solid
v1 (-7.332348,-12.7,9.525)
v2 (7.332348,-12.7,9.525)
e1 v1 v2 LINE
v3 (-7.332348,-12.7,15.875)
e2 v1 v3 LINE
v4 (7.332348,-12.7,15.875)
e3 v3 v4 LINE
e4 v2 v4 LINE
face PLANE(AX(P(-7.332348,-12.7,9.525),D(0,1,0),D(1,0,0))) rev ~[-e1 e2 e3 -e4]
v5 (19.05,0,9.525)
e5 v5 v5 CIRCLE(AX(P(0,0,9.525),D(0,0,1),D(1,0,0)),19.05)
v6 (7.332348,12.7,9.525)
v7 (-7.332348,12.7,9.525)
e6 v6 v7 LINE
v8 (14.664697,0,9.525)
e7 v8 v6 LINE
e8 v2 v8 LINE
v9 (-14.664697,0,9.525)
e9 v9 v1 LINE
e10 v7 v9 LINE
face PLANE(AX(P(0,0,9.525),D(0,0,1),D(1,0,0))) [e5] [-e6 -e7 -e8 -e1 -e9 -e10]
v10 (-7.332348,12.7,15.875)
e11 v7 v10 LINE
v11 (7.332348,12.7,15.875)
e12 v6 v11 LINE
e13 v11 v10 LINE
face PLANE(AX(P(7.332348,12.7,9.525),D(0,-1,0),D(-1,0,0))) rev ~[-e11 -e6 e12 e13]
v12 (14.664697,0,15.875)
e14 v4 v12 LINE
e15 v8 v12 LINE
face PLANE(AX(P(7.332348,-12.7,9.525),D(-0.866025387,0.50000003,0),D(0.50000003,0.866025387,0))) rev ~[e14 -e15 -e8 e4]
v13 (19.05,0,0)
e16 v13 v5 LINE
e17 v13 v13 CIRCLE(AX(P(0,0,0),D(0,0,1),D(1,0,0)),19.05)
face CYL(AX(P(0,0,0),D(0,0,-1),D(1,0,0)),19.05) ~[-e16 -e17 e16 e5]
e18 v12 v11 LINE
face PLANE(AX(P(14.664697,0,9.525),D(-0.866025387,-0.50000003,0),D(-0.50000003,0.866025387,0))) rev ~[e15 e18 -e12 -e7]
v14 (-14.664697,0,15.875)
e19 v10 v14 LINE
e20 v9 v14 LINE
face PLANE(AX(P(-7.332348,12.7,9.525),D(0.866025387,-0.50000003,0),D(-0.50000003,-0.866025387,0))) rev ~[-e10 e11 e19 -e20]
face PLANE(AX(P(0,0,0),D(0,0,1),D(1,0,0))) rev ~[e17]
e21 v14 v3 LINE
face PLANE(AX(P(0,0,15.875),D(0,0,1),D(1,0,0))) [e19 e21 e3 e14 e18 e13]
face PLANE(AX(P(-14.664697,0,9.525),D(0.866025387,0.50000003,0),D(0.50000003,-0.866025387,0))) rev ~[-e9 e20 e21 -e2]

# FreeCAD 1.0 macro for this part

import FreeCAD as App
import Part
import Sketcher
Q = App.Units.Quantity


def add_polygon(sketch, points):
    """Adds a closed chain of lines whose ends are joined by coincident constraints."""
    first, n = sketch.GeometryCount, len(points)
    for a, b in zip(points, points[1:] + points[:1]):
        sketch.addGeometry(Part.LineSegment(App.Vector(*a, 0), App.Vector(*b, 0)), False)
    for i in range(n):
        sketch.addConstraint(Sketcher.Constraint("Coincident", first + i, 2, first + (i + 1) % n, 1))

doc = App.newDocument("Part")
body = doc.addObject("PartDesign::Body", "Body")

# Sketch on XY plane
sketch1 = body.newObject("Sketcher::SketchObject", "Sketch")
sketch1.AttachmentSupport = (doc.getObject("XY_Plane"), [""])
sketch1.MapMode = "FlatFace"
sketch1.addGeometry(Part.Circle(App.Vector(0, 0, 0), App.Vector(0, 0, 1), 19.05), False)
sketch1.addConstraint(Sketcher.Constraint("Coincident", 0, 3, -1, 1))
sketch1.addConstraint(Sketcher.Constraint("Diameter", 0, Q("1.5 in")))
pad1 = body.newObject("PartDesign::Pad", "Pad")
pad1.Profile = sketch1
pad1.Length = Q("0.375 in")

# Sketch on XY plane
sketch2 = body.newObject("Sketcher::SketchObject", "Sketch001")
sketch2.AttachmentSupport = (doc.getObject("XY_Plane"), [""])
sketch2.MapMode = "FlatFace"
sketch2.AttachmentOffset = App.Placement(App.Vector(0, 0, 0.375 * 25.4), App.Rotation())
add_polygon(sketch2, [(7.332348, 12.7), (-7.332348, 12.7), (-14.664697, 0), (-7.332348, -12.7), (7.332348, -12.7), (14.664697, 0)])  # lines 0-5
sketch2.addConstraint(Sketcher.Constraint("Horizontal", 0))
sketch2.addConstraint(Sketcher.Constraint("Horizontal", 3))
sketch2.addConstraint(Sketcher.Constraint("Symmetric", 0, 2, 3, 2, -1, 1))
sketch2.addConstraint(Sketcher.Constraint("Symmetric", 1, 2, 4, 2, -1, 1))
sketch2.addConstraint(Sketcher.Constraint("PointOnObject", 1, 2, -1))
sketch2.addConstraint(Sketcher.Constraint("Parallel", 2, 5))
sketch2.addConstraint(Sketcher.Constraint("Vertical", 0, 2, 2, 2))
sketch2.addConstraint(Sketcher.Constraint("Angle", 1, Q("-120.000002 deg")))
sketch2.addConstraint(Sketcher.Constraint("DistanceY", 2, 2, 0, 2, Q("1 in")))
sketch2.addConstraint(Sketcher.Constraint("DistanceX", 0, 2, 0, 1, 14.664696))
pad2 = body.newObject("PartDesign::Pad", "Pad001")
pad2.Profile = sketch2
pad2.Length = Q("0.25 in")

doc.recompute()
